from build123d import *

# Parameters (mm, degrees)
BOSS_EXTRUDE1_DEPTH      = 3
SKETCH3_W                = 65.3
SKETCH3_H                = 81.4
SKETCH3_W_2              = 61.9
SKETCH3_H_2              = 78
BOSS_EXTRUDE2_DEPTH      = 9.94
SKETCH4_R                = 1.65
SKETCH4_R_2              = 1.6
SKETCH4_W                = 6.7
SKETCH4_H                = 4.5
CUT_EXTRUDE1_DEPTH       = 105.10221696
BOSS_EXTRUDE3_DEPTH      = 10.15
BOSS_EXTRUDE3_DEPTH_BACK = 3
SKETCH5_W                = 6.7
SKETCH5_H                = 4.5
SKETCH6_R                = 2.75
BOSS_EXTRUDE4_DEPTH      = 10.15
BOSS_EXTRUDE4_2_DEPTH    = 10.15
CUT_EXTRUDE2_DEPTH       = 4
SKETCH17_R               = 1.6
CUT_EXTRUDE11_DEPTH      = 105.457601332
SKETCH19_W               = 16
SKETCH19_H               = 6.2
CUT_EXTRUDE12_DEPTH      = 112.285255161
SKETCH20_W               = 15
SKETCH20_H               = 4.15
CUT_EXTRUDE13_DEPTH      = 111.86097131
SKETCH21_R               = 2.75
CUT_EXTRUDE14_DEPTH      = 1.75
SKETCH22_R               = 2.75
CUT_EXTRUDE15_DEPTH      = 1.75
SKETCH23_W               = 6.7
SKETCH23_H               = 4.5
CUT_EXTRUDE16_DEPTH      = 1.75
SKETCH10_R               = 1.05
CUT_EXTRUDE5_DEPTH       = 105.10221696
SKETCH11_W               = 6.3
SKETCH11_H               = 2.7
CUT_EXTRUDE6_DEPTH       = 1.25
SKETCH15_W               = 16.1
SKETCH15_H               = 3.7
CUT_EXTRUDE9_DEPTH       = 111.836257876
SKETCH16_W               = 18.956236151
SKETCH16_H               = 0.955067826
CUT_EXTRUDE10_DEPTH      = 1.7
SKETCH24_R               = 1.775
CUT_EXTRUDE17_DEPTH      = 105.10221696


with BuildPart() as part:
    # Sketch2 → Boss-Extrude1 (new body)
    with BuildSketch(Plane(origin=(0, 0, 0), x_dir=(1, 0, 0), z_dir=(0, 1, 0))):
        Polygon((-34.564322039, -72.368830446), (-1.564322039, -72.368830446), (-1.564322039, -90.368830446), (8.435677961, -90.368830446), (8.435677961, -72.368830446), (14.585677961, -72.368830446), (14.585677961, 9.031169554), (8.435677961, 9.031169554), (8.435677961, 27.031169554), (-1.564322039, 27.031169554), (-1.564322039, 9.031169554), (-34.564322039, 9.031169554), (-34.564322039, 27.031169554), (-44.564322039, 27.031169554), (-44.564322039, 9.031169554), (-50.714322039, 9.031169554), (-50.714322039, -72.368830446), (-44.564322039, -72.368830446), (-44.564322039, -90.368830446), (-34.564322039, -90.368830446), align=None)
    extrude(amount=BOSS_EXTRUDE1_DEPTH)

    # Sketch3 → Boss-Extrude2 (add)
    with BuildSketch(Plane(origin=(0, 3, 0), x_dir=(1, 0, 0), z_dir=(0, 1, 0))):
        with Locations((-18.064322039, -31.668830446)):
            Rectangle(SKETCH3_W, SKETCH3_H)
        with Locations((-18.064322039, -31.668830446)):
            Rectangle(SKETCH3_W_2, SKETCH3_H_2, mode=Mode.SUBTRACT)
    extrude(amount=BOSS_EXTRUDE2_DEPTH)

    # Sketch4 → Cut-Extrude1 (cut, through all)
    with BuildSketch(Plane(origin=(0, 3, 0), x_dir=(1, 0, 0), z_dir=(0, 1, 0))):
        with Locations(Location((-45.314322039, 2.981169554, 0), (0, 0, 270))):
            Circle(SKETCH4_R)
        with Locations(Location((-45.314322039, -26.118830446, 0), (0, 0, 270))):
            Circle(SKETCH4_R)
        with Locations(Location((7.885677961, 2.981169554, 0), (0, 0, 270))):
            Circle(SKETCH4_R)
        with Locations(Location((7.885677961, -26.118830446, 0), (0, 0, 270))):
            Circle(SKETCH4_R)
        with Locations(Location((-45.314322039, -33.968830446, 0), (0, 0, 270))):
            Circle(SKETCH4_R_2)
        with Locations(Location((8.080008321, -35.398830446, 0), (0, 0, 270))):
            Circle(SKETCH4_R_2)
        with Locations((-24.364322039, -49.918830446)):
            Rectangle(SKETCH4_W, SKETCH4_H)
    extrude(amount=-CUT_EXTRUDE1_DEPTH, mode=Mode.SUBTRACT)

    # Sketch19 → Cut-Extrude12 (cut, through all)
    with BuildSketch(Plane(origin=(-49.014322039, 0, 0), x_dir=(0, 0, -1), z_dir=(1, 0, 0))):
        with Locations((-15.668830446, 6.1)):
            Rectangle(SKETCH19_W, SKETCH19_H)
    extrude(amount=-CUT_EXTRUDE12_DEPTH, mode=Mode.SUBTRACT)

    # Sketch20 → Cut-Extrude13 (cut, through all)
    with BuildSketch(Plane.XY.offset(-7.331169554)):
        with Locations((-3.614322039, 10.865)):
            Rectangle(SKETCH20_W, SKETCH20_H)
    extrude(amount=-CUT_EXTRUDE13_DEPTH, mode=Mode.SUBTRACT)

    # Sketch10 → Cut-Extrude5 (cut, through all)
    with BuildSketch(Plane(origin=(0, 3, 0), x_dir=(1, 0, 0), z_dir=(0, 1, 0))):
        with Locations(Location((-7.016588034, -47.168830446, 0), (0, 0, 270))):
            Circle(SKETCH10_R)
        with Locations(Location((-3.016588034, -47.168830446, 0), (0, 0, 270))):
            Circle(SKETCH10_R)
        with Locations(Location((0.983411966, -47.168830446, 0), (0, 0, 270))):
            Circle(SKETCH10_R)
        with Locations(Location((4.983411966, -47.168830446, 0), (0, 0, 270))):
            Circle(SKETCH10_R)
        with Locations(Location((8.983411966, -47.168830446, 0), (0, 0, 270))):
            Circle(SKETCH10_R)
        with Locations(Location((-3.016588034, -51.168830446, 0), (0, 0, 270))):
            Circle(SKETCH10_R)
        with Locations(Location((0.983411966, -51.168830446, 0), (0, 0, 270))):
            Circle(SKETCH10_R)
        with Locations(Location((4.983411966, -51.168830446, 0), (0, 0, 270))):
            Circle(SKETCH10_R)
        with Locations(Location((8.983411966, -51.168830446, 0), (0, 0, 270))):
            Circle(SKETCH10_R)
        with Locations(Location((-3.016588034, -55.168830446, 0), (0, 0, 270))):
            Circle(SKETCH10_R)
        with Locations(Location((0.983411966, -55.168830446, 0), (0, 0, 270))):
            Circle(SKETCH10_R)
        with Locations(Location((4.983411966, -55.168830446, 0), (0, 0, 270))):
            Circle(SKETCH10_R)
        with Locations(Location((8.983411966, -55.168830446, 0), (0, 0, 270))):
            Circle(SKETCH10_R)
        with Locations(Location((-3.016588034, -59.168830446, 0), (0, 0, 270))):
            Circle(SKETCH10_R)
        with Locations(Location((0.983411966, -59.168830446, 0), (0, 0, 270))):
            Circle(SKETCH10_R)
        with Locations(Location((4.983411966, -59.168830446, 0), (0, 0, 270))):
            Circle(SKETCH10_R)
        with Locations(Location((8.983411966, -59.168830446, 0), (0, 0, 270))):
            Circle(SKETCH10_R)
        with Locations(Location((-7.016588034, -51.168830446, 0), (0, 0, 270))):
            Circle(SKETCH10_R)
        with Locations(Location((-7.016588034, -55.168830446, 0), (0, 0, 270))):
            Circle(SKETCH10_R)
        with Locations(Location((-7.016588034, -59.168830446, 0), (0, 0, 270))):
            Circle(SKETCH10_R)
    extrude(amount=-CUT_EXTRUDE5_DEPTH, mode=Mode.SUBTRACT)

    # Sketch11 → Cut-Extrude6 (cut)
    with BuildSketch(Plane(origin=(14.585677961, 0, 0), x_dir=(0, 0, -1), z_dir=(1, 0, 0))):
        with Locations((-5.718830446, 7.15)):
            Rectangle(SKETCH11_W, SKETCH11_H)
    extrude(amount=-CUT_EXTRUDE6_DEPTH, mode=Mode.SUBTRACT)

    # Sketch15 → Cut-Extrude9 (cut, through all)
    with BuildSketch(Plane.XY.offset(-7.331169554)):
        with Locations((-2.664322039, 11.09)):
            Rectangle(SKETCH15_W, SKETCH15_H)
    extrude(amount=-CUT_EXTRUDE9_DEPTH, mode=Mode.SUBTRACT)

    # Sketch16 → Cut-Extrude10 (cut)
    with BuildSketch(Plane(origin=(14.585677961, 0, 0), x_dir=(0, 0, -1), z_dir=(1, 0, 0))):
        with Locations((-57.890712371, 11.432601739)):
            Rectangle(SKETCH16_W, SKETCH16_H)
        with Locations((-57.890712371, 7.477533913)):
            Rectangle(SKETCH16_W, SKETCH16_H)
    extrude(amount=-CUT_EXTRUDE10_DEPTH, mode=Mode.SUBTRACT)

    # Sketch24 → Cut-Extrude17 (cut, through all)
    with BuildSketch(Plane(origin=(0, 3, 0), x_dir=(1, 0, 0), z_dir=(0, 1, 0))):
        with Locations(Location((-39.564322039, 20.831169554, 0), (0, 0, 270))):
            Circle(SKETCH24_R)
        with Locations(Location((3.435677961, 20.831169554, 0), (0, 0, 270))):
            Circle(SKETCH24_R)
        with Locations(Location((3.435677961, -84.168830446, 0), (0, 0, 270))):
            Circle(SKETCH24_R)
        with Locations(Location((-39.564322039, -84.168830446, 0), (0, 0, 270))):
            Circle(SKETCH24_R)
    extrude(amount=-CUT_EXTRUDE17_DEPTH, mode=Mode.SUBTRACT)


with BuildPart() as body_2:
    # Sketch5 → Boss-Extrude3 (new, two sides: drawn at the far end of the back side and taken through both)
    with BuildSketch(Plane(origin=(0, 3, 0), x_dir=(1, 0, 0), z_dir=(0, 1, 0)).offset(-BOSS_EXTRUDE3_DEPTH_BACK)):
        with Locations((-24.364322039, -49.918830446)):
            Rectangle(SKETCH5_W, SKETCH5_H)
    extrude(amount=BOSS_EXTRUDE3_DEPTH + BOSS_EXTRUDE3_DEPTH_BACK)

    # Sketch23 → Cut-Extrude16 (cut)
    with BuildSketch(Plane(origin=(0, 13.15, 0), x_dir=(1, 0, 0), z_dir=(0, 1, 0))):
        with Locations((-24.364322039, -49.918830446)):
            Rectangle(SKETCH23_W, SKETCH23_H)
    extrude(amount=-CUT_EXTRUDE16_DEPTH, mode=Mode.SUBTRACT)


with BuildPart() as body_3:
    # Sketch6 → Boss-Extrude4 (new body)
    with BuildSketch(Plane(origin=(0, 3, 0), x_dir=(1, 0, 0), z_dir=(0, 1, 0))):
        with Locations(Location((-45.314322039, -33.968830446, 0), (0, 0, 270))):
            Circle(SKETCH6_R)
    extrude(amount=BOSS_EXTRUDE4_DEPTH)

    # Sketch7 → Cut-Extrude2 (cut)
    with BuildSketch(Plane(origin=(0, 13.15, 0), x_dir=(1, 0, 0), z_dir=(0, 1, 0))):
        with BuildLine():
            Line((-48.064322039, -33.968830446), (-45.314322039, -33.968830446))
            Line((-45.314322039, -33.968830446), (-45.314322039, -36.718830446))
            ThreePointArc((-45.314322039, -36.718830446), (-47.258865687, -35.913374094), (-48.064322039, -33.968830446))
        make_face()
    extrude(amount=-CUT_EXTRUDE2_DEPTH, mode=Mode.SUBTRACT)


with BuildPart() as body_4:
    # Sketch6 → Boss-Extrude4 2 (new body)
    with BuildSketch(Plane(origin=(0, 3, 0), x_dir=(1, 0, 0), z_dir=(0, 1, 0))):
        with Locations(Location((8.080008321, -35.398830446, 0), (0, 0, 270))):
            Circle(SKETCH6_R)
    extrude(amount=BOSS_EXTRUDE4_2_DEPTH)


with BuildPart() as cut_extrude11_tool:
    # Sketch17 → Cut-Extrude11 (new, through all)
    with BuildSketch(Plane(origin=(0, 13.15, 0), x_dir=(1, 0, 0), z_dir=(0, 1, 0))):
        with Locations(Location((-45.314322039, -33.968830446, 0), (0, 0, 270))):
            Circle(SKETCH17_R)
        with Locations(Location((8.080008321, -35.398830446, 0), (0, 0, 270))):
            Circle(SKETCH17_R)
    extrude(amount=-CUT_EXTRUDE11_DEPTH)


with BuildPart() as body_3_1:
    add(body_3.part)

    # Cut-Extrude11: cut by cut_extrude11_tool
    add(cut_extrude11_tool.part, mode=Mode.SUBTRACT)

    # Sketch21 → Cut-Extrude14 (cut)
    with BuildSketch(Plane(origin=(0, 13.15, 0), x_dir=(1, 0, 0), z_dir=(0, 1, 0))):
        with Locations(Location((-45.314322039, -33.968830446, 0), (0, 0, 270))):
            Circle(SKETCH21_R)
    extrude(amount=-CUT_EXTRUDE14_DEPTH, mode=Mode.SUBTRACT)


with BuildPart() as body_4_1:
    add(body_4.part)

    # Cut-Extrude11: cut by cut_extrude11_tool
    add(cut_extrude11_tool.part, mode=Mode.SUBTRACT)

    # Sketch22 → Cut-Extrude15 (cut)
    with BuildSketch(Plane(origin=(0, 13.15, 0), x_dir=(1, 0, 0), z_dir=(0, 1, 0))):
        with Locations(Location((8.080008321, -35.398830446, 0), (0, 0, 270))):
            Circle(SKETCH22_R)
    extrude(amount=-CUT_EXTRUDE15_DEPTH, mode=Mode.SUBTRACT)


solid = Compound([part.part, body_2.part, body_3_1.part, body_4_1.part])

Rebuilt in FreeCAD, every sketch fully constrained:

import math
import FreeCAD as App
import Part
import Sketcher
Q = App.Units.Quantity

doc = App.newDocument("Part")
body = doc.addObject("PartDesign::Body", "Body")

sketch1 = doc.addObject("Sketcher::SketchObject", "Sketch")
body.addObject(sketch1)
sketch1.AttachmentSupport = (doc.XZ_Plane, [""])
sketch1.MapMode = "FlatFace"
sketch1.addGeometry([
    Part.LineSegment(App.Vector(-34.564322, 72.36883, 0), App.Vector(-1.564322, 72.36883, 0)),
    Part.LineSegment(App.Vector(-1.564322, 72.36883, 0), App.Vector(-1.564322, 90.36883, 0)),
    Part.LineSegment(App.Vector(-1.564322, 90.36883, 0), App.Vector(8.435678, 90.36883, 0)),
    Part.LineSegment(App.Vector(8.435678, 90.36883, 0), App.Vector(8.435678, 72.36883, 0)),
    Part.LineSegment(App.Vector(8.435678, 72.36883, 0), App.Vector(14.585678, 72.36883, 0)),
    Part.LineSegment(App.Vector(14.585678, 72.36883, 0), App.Vector(14.585678, -9.03117, 0)),
    Part.LineSegment(App.Vector(14.585678, -9.03117, 0), App.Vector(8.435678, -9.03117, 0)),
    Part.LineSegment(App.Vector(8.435678, -9.03117, 0), App.Vector(8.435678, -27.03117, 0)),
    Part.LineSegment(App.Vector(8.435678, -27.03117, 0), App.Vector(-1.564322, -27.03117, 0)),
    Part.LineSegment(App.Vector(-1.564322, -27.03117, 0), App.Vector(-1.564322, -9.03117, 0)),
    Part.LineSegment(App.Vector(-1.564322, -9.03117, 0), App.Vector(-34.564322, -9.03117, 0)),
    Part.LineSegment(App.Vector(-34.564322, -9.03117, 0), App.Vector(-34.564322, -27.03117, 0)),
    Part.LineSegment(App.Vector(-34.564322, -27.03117, 0), App.Vector(-44.564322, -27.03117, 0)),
    Part.LineSegment(App.Vector(-44.564322, -27.03117, 0), App.Vector(-44.564322, -9.03117, 0)),
    Part.LineSegment(App.Vector(-44.564322, -9.03117, 0), App.Vector(-50.714322, -9.03117, 0)),
    Part.LineSegment(App.Vector(-50.714322, -9.03117, 0), App.Vector(-50.714322, 72.36883, 0)),
    Part.LineSegment(App.Vector(-50.714322, 72.36883, 0), App.Vector(-44.564322, 72.36883, 0)),
    Part.LineSegment(App.Vector(-44.564322, 72.36883, 0), App.Vector(-44.564322, 90.36883, 0)),
    Part.LineSegment(App.Vector(-44.564322, 90.36883, 0), App.Vector(-34.564322, 90.36883, 0)),
    Part.LineSegment(App.Vector(-34.564322, 90.36883, 0), App.Vector(-34.564322, 72.36883, 0)),
], False)
sketch1.addConstraint([
    Sketcher.Constraint("Coincident", 0, 2, 1, 1),
    Sketcher.Constraint("Coincident", 1, 2, 2, 1),
    Sketcher.Constraint("Coincident", 2, 2, 3, 1),
    Sketcher.Constraint("Coincident", 3, 2, 4, 1),
    Sketcher.Constraint("Coincident", 4, 2, 5, 1),
    Sketcher.Constraint("Coincident", 5, 2, 6, 1),
    Sketcher.Constraint("Coincident", 6, 2, 7, 1),
    Sketcher.Constraint("Coincident", 7, 2, 8, 1),
    Sketcher.Constraint("Coincident", 8, 2, 9, 1),
    Sketcher.Constraint("Coincident", 9, 2, 10, 1),
    Sketcher.Constraint("Coincident", 10, 2, 11, 1),
    Sketcher.Constraint("Coincident", 11, 2, 12, 1),
    Sketcher.Constraint("Coincident", 12, 2, 13, 1),
    Sketcher.Constraint("Coincident", 13, 2, 14, 1),
    Sketcher.Constraint("Coincident", 14, 2, 15, 1),
    Sketcher.Constraint("Coincident", 15, 2, 16, 1),
    Sketcher.Constraint("Coincident", 16, 2, 17, 1),
    Sketcher.Constraint("Coincident", 17, 2, 18, 1),
    Sketcher.Constraint("Coincident", 18, 2, 19, 1),
    Sketcher.Constraint("Coincident", 19, 2, 0, 1),
    Sketcher.Constraint("Horizontal", 0),
    Sketcher.Constraint("Vertical", 1),
    Sketcher.Constraint("Horizontal", 2),
    Sketcher.Constraint("Vertical", 3),
    Sketcher.Constraint("Horizontal", 4),
    Sketcher.Constraint("Vertical", 5),
    Sketcher.Constraint("Horizontal", 6),
    Sketcher.Constraint("Vertical", 7),
    Sketcher.Constraint("Horizontal", 8),
    Sketcher.Constraint("Vertical", 9),
    Sketcher.Constraint("Horizontal", 10),
    Sketcher.Constraint("Vertical", 11),
    Sketcher.Constraint("Horizontal", 12),
    Sketcher.Constraint("Vertical", 13),
    Sketcher.Constraint("Horizontal", 14),
    Sketcher.Constraint("Vertical", 15),
    Sketcher.Constraint("Horizontal", 16),
    Sketcher.Constraint("Vertical", 17),
    Sketcher.Constraint("Horizontal", 18),
    Sketcher.Constraint("Vertical", 19),
    Sketcher.Constraint("Horizontal", 0, 2, 3, 2),
    Sketcher.Constraint("Horizontal", 6, 2, 9, 2),
    Sketcher.Constraint("Horizontal", 8, 2, 11, 2),
    Sketcher.Constraint("Horizontal", 10, 2, 13, 2),
    Sketcher.Constraint("Horizontal", 4, 2, 15, 2),
    Sketcher.Constraint("Horizontal", 2, 2, 17, 2),
    Sketcher.Constraint("Vertical", 3, 2, 6, 2),
    Sketcher.Constraint("Vertical", 1, 2, 8, 2),
    Sketcher.Constraint("Vertical", 13, 2, 16, 2),
    Sketcher.Constraint("Vertical", 11, 2, 18, 2),
    Sketcher.Constraint("Equal", 8, 12),
    Sketcher.Constraint("Equal", 6, 14),
    Sketcher.Constraint("Equal", 3, 7),
    Sketcher.Constraint("DistanceX", 0, 1, 0, 2, Q("33 mm")),
    Sketcher.Constraint("DistanceX", 2, 1, 2, 2, Q("10 mm")),
    Sketcher.Constraint("DistanceY", 1, 1, 1, 2, Q("18 mm")),
    Sketcher.Constraint("DistanceY", 5, 2, 5, 1, Q("81.4 mm")),
    Sketcher.Constraint("DistanceX", 4, 1, 4, 2, Q("6.15 mm")),
    Sketcher.Constraint("DistanceY", -1, 1, 0, 2, Q("72.36883 mm")),
    Sketcher.Constraint("DistanceX", 0, 2, -1, 1, Q("1.564322 mm")),
])
pad1 = doc.addObject("PartDesign::Pad", "Pad")
body.addObject(pad1)
pad1.Profile = sketch1
pad1.Length = 3
pad1.Reversed = True

sketch2 = doc.addObject("Sketcher::SketchObject", "Sketch001")
body.addObject(sketch2)
sketch2.AttachmentSupport = (doc.XZ_Plane, [""])
sketch2.MapMode = "FlatFace"
sketch2.AttachmentOffset = App.Placement(App.Vector(0, 0, -3), App.Rotation())
sketch2.addGeometry([
    Part.LineSegment(App.Vector(-50.714322, -9.03117, 0), App.Vector(-50.714322, 72.36883, 0)),
    Part.LineSegment(App.Vector(-50.714322, 72.36883, 0), App.Vector(14.585678, 72.36883, 0)),
    Part.LineSegment(App.Vector(14.585678, 72.36883, 0), App.Vector(14.585678, -9.03117, 0)),
    Part.LineSegment(App.Vector(14.585678, -9.03117, 0), App.Vector(-50.714322, -9.03117, 0)),
    Part.LineSegment(App.Vector(12.885678, 70.66883, 0), App.Vector(-49.014322, 70.66883, 0)),
    Part.LineSegment(App.Vector(-49.014322, 70.66883, 0), App.Vector(-49.014322, -7.33117, 0)),
    Part.LineSegment(App.Vector(-49.014322, -7.33117, 0), App.Vector(12.885678, -7.33117, 0)),
    Part.LineSegment(App.Vector(12.885678, -7.33117, 0), App.Vector(12.885678, 70.66883, 0)),
], False)
sketch2.addConstraint([
    Sketcher.Constraint("Coincident", 0, 2, 1, 1),
    Sketcher.Constraint("Coincident", 1, 2, 2, 1),
    Sketcher.Constraint("Coincident", 2, 2, 3, 1),
    Sketcher.Constraint("Coincident", 3, 2, 0, 1),
    Sketcher.Constraint("Coincident", 4, 2, 5, 1),
    Sketcher.Constraint("Coincident", 5, 2, 6, 1),
    Sketcher.Constraint("Coincident", 6, 2, 7, 1),
    Sketcher.Constraint("Coincident", 7, 2, 4, 1),
    Sketcher.Constraint("Vertical", 0),
    Sketcher.Constraint("Horizontal", 1),
    Sketcher.Constraint("Vertical", 2),
    Sketcher.Constraint("Horizontal", 3),
    Sketcher.Constraint("Horizontal", 4),
    Sketcher.Constraint("Vertical", 5),
    Sketcher.Constraint("Horizontal", 6),
    Sketcher.Constraint("Vertical", 7),
    Sketcher.Constraint("DistanceY", 5, 2, 5, 1, Q("78 mm")),
    Sketcher.Constraint("DistanceX", 1, 1, 1, 2, Q("65.3 mm")),
    Sketcher.Constraint("DistanceX", 4, 2, 4, 1, Q("61.9 mm")),
    Sketcher.Constraint("DistanceY", 0, 1, 0, 2, Q("81.4 mm")),
    Sketcher.Constraint("DistanceX", 0, 2, 4, 2, Q("1.7 mm")),
    Sketcher.Constraint("DistanceY", 4, 2, 0, 2, Q("1.7 mm")),
    Sketcher.Constraint("DistanceY", -1, 1, 0, 2, Q("72.36883 mm")),
    Sketcher.Constraint("DistanceX", 0, 2, -1, 1, Q("50.714322 mm")),
])
pad2 = doc.addObject("PartDesign::Pad", "Pad001")
body.addObject(pad2)
pad2.Profile = sketch2
pad2.Length = 9.94
pad2.Reversed = True

sketch3 = doc.addObject("Sketcher::SketchObject", "Sketch002")
body.addObject(sketch3)
sketch3.AttachmentSupport = (doc.XZ_Plane, [""])
sketch3.MapMode = "FlatFace"
sketch3.AttachmentOffset = App.Placement(App.Vector(0, 0, -3), App.Rotation())
sketch3.addGeometry([
    Part.Circle(App.Vector(-45.314322, -2.98117, 0), App.Vector(0, 0, 1), 1.65),
    Part.Circle(App.Vector(-45.314322, 26.11883, 0), App.Vector(0, 0, 1), 1.65),
    Part.Circle(App.Vector(7.885678, -2.98117, 0), App.Vector(0, 0, 1), 1.65),
    Part.Circle(App.Vector(7.885678, 26.11883, 0), App.Vector(0, 0, 1), 1.65),
    Part.Circle(App.Vector(-45.314322, 33.96883, 0), App.Vector(0, 0, 1), 1.6),
    Part.Circle(App.Vector(8.080008, 35.39883, 0), App.Vector(0, 0, 1), 1.6),
    Part.LineSegment(App.Vector(-27.714322, 47.66883, 0), App.Vector(-27.714322, 52.16883, 0)),
    Part.LineSegment(App.Vector(-27.714322, 52.16883, 0), App.Vector(-21.014322, 52.16883, 0)),
    Part.LineSegment(App.Vector(-21.014322, 52.16883, 0), App.Vector(-21.014322, 47.66883, 0)),
    Part.LineSegment(App.Vector(-21.014322, 47.66883, 0), App.Vector(-27.714322, 47.66883, 0)),
], False)
sketch3.addConstraint([
    Sketcher.Constraint("Coincident", 6, 2, 7, 1),
    Sketcher.Constraint("Coincident", 7, 2, 8, 1),
    Sketcher.Constraint("Coincident", 8, 2, 9, 1),
    Sketcher.Constraint("Coincident", 9, 2, 6, 1),
    Sketcher.Constraint("Vertical", 6),
    Sketcher.Constraint("Horizontal", 7),
    Sketcher.Constraint("Vertical", 8),
    Sketcher.Constraint("Horizontal", 9),
    Sketcher.Constraint("Equal", 0, 1),
    Sketcher.Constraint("Equal", 1, 2),
    Sketcher.Constraint("Equal", 2, 3),
    Sketcher.Constraint("Equal", 4, 5),
    Sketcher.Constraint("Horizontal", 0, 3, 2, 3),
    Sketcher.Constraint("Horizontal", 1, 3, 3, 3),
    Sketcher.Constraint("Vertical", 0, 3, 1, 3),
    Sketcher.Constraint("Vertical", 2, 3, 3, 3),
    Sketcher.Constraint("Vertical", 1, 3, 4, 3),
    Sketcher.Constraint("Diameter", 0, Q("3.3 mm")),
    Sketcher.Constraint("Diameter", 4, Q("3.2 mm")),
    Sketcher.Constraint("DistanceX", 7, 1, 7, 2, Q("6.7 mm")),
    Sketcher.Constraint("DistanceY", 6, 1, 6, 2, Q("4.5 mm")),
    Sketcher.Constraint("DistanceY", 0, 3, 1, 3, Q("29.1 mm")),
    Sketcher.Constraint("DistanceX", 0, 3, 2, 3, Q("53.2 mm")),
    Sketcher.Constraint("DistanceX", 4, 3, 6, 2, Q("17.6 mm")),
    Sketcher.Constraint("DistanceY", 4, 3, 6, 2, Q("18.2 mm")),
    Sketcher.Constraint("DistanceY", 1, 3, 4, 3, Q("7.85 mm")),
    Sketcher.Constraint("DistanceY", 3, 3, 5, 3, Q("9.28 mm")),
    Sketcher.Constraint("DistanceY", 0, 3, -1, 1, Q("2.98117 mm")),
    Sketcher.Constraint("DistanceX", -1, 1, 5, 3, Q("8.080008 mm")),
    Sketcher.Constraint("DistanceX", 3, 3, 5, 3, Q("0.19433 mm")),
])
pocket1 = doc.addObject("PartDesign::Pocket", "Pocket")
body.addObject(pocket1)
pocket1.Profile = sketch3
pocket1.Type = "ThroughAll"
pocket1.Reversed = True

sketch4 = doc.addObject("Sketcher::SketchObject", "Sketch003")
body.addObject(sketch4)
sketch4.AttachmentSupport = (doc.YZ_Plane, [""])
sketch4.MapMode = "FlatFace"
sketch4.AttachmentOffset = App.Placement(App.Vector(0, 0, -49.014322), App.Rotation())
sketch4.addGeometry([
    Part.LineSegment(App.Vector(9.2, 23.66883, 0), App.Vector(3, 23.66883, 0)),
    Part.LineSegment(App.Vector(3, 23.66883, 0), App.Vector(3, 7.66883, 0)),
    Part.LineSegment(App.Vector(3, 7.66883, 0), App.Vector(9.2, 7.66883, 0)),
    Part.LineSegment(App.Vector(9.2, 7.66883, 0), App.Vector(9.2, 23.66883, 0)),
], False)
sketch4.addConstraint([
    Sketcher.Constraint("Coincident", 0, 2, 1, 1),
    Sketcher.Constraint("Coincident", 1, 2, 2, 1),
    Sketcher.Constraint("Coincident", 2, 2, 3, 1),
    Sketcher.Constraint("Coincident", 3, 2, 0, 1),
    Sketcher.Constraint("Horizontal", 0),
    Sketcher.Constraint("Vertical", 1),
    Sketcher.Constraint("Horizontal", 2),
    Sketcher.Constraint("Vertical", 3),
    Sketcher.Constraint("DistanceY", 1, 2, 1, 1, Q("16 mm")),
    Sketcher.Constraint("DistanceX", 0, 2, 0, 1, Q("6.2 mm")),
    Sketcher.Constraint("DistanceX", -1, 1, 0, 2, Q("3 mm")),
    Sketcher.Constraint("DistanceY", -1, 1, 0, 2, Q("23.66883 mm")),
])
pocket2 = doc.addObject("PartDesign::Pocket", "Pocket001")
body.addObject(pocket2)
pocket2.Profile = sketch4
pocket2.Type = "ThroughAll"

sketch5 = doc.addObject("Sketcher::SketchObject", "Sketch004")
body.addObject(sketch5)
sketch5.AttachmentSupport = (doc.XY_Plane, [""])
sketch5.MapMode = "FlatFace"
sketch5.AttachmentOffset = App.Placement(App.Vector(0, 0, -7.33117), App.Rotation())
sketch5.addGeometry([
    Part.LineSegment(App.Vector(-11.114322, 12.94, 0), App.Vector(-11.114322, 8.79, 0)),
    Part.LineSegment(App.Vector(-11.114322, 8.79, 0), App.Vector(3.885678, 8.79, 0)),
    Part.LineSegment(App.Vector(3.885678, 8.79, 0), App.Vector(3.885678, 12.94, 0)),
    Part.LineSegment(App.Vector(3.885678, 12.94, 0), App.Vector(-11.114322, 12.94, 0)),
], False)
sketch5.addConstraint([
    Sketcher.Constraint("Coincident", 0, 2, 1, 1),
    Sketcher.Constraint("Coincident", 1, 2, 2, 1),
    Sketcher.Constraint("Coincident", 2, 2, 3, 1),
    Sketcher.Constraint("Coincident", 3, 2, 0, 1),
    Sketcher.Constraint("Vertical", 0),
    Sketcher.Constraint("Horizontal", 1),
    Sketcher.Constraint("Vertical", 2),
    Sketcher.Constraint("Horizontal", 3),
    Sketcher.Constraint("DistanceX", 1, 1, 1, 2, Q("15 mm")),
    Sketcher.Constraint("DistanceY", 0, 2, 0, 1, Q("4.15 mm")),
    Sketcher.Constraint("DistanceY", -1, 1, 0, 2, Q("8.79 mm")),
    Sketcher.Constraint("DistanceX", 0, 2, -1, 1, Q("11.114322 mm")),
])
pocket3 = doc.addObject("PartDesign::Pocket", "Pocket002")
body.addObject(pocket3)
pocket3.Profile = sketch5
pocket3.Type = "ThroughAll"

sketch6 = doc.addObject("Sketcher::SketchObject", "Sketch005")
body.addObject(sketch6)
sketch6.AttachmentSupport = (doc.XZ_Plane, [""])
sketch6.MapMode = "FlatFace"
sketch6.AttachmentOffset = App.Placement(App.Vector(0, 0, -3), App.Rotation())
sketch6.addGeometry([
    Part.Circle(App.Vector(-7.016588, 47.16883, 0), App.Vector(0, 0, 1), 1.05),
    Part.Circle(App.Vector(-3.016588, 47.16883, 0), App.Vector(0, 0, 1), 1.05),
    Part.Circle(App.Vector(0.983412, 47.16883, 0), App.Vector(0, 0, 1), 1.05),
    Part.Circle(App.Vector(4.983412, 47.16883, 0), App.Vector(0, 0, 1), 1.05),
    Part.Circle(App.Vector(8.983412, 47.16883, 0), App.Vector(0, 0, 1), 1.05),
    Part.Circle(App.Vector(-3.016588, 51.16883, 0), App.Vector(0, 0, 1), 1.05),
    Part.Circle(App.Vector(0.983412, 51.16883, 0), App.Vector(0, 0, 1), 1.05),
    Part.Circle(App.Vector(4.983412, 51.16883, 0), App.Vector(0, 0, 1), 1.05),
    Part.Circle(App.Vector(8.983412, 51.16883, 0), App.Vector(0, 0, 1), 1.05),
    Part.Circle(App.Vector(-3.016588, 55.16883, 0), App.Vector(0, 0, 1), 1.05),
    Part.Circle(App.Vector(0.983412, 55.16883, 0), App.Vector(0, 0, 1), 1.05),
    Part.Circle(App.Vector(4.983412, 55.16883, 0), App.Vector(0, 0, 1), 1.05),
    Part.Circle(App.Vector(8.983412, 55.16883, 0), App.Vector(0, 0, 1), 1.05),
    Part.Circle(App.Vector(-3.016588, 59.16883, 0), App.Vector(0, 0, 1), 1.05),
    Part.Circle(App.Vector(0.983412, 59.16883, 0), App.Vector(0, 0, 1), 1.05),
    Part.Circle(App.Vector(4.983412, 59.16883, 0), App.Vector(0, 0, 1), 1.05),
    Part.Circle(App.Vector(8.983412, 59.16883, 0), App.Vector(0, 0, 1), 1.05),
    Part.Circle(App.Vector(-7.016588, 51.16883, 0), App.Vector(0, 0, 1), 1.05),
    Part.Circle(App.Vector(-7.016588, 55.16883, 0), App.Vector(0, 0, 1), 1.05),
    Part.Circle(App.Vector(-7.016588, 59.16883, 0), App.Vector(0, 0, 1), 1.05),
], False)
sketch6.addConstraint([
    Sketcher.Constraint("Equal", 0, 1),
    Sketcher.Constraint("Equal", 1, 2),
    Sketcher.Constraint("Equal", 2, 3),
    Sketcher.Constraint("Equal", 3, 4),
    Sketcher.Constraint("Equal", 4, 5),
    Sketcher.Constraint("Equal", 5, 6),
    Sketcher.Constraint("Equal", 6, 7),
    Sketcher.Constraint("Equal", 7, 8),
    Sketcher.Constraint("Equal", 8, 9),
    Sketcher.Constraint("Equal", 9, 10),
    Sketcher.Constraint("Equal", 10, 11),
    Sketcher.Constraint("Equal", 11, 12),
    Sketcher.Constraint("Equal", 12, 13),
    Sketcher.Constraint("Equal", 13, 14),
    Sketcher.Constraint("Equal", 14, 15),
    Sketcher.Constraint("Equal", 15, 16),
    Sketcher.Constraint("Equal", 16, 17),
    Sketcher.Constraint("Equal", 17, 18),
    Sketcher.Constraint("Equal", 18, 19),
    Sketcher.Constraint("Horizontal", 0, 3, 1, 3),
    Sketcher.Constraint("Horizontal", 1, 3, 2, 3),
    Sketcher.Constraint("Horizontal", 2, 3, 3, 3),
    Sketcher.Constraint("Horizontal", 3, 3, 4, 3),
    Sketcher.Constraint("Horizontal", 5, 3, 6, 3),
    Sketcher.Constraint("Horizontal", 6, 3, 7, 3),
    Sketcher.Constraint("Horizontal", 7, 3, 8, 3),
    Sketcher.Constraint("Horizontal", 9, 3, 10, 3),
    Sketcher.Constraint("Horizontal", 10, 3, 11, 3),
    Sketcher.Constraint("Horizontal", 11, 3, 12, 3),
    Sketcher.Constraint("Horizontal", 13, 3, 14, 3),
    Sketcher.Constraint("Horizontal", 14, 3, 15, 3),
    Sketcher.Constraint("Horizontal", 15, 3, 16, 3),
    Sketcher.Constraint("Horizontal", 8, 3, 17, 3),
    Sketcher.Constraint("Horizontal", 12, 3, 18, 3),
    Sketcher.Constraint("Horizontal", 16, 3, 19, 3),
    Sketcher.Constraint("Vertical", 1, 3, 5, 3),
    Sketcher.Constraint("Vertical", 2, 3, 6, 3),
    Sketcher.Constraint("Vertical", 3, 3, 7, 3),
    Sketcher.Constraint("Vertical", 4, 3, 8, 3),
    Sketcher.Constraint("Vertical", 5, 3, 9, 3),
    Sketcher.Constraint("Vertical", 6, 3, 10, 3),
    Sketcher.Constraint("Vertical", 7, 3, 11, 3),
    Sketcher.Constraint("Vertical", 8, 3, 12, 3),
    Sketcher.Constraint("Vertical", 9, 3, 13, 3),
    Sketcher.Constraint("Vertical", 10, 3, 14, 3),
    Sketcher.Constraint("Vertical", 11, 3, 15, 3),
    Sketcher.Constraint("Vertical", 12, 3, 16, 3),
    Sketcher.Constraint("Vertical", 0, 3, 17, 3),
    Sketcher.Constraint("Vertical", 17, 3, 18, 3),
    Sketcher.Constraint("Vertical", 18, 3, 19, 3),
    Sketcher.Constraint("Diameter", 0, Q("2.1 mm")),
    Sketcher.Constraint("DistanceX", 0, 3, 1, 3, Q("4 mm")),
    Sketcher.Constraint("DistanceX", 1, 3, 2, 3, Q("4 mm")),
    Sketcher.Constraint("DistanceX", 2, 3, 3, 3, Q("4 mm")),
    Sketcher.Constraint("DistanceX", 3, 3, 4, 3, Q("4 mm")),
    Sketcher.Constraint("DistanceY", 1, 3, 5, 3, Q("4 mm")),
    Sketcher.Constraint("DistanceY", 5, 3, 9, 3, Q("4 mm")),
    Sketcher.Constraint("DistanceY", 9, 3, 13, 3, Q("4 mm")),
    Sketcher.Constraint("DistanceX", 0, 3, -1, 1, Q("7.016588 mm")),
    Sketcher.Constraint("DistanceY", -1, 1, 0, 3, Q("47.16883 mm")),
])
pocket4 = doc.addObject("PartDesign::Pocket", "Pocket003")
body.addObject(pocket4)
pocket4.Profile = sketch6
pocket4.Type = "ThroughAll"
pocket4.Reversed = True

sketch7 = doc.addObject("Sketcher::SketchObject", "Sketch006")
body.addObject(sketch7)
sketch7.AttachmentSupport = (doc.YZ_Plane, [""])
sketch7.MapMode = "FlatFace"
sketch7.AttachmentOffset = App.Placement(App.Vector(0, 0, 14.585678), App.Rotation())
sketch7.addGeometry([
    Part.LineSegment(App.Vector(8.5, 8.86883, 0), App.Vector(5.8, 8.86883, 0)),
    Part.LineSegment(App.Vector(5.8, 8.86883, 0), App.Vector(5.8, 2.56883, 0)),
    Part.LineSegment(App.Vector(5.8, 2.56883, 0), App.Vector(8.5, 2.56883, 0)),
    Part.LineSegment(App.Vector(8.5, 2.56883, 0), App.Vector(8.5, 8.86883, 0)),
], False)
sketch7.addConstraint([
    Sketcher.Constraint("Coincident", 0, 2, 1, 1),
    Sketcher.Constraint("Coincident", 1, 2, 2, 1),
    Sketcher.Constraint("Coincident", 2, 2, 3, 1),
    Sketcher.Constraint("Coincident", 3, 2, 0, 1),
    Sketcher.Constraint("Horizontal", 0),
    Sketcher.Constraint("Vertical", 1),
    Sketcher.Constraint("Horizontal", 2),
    Sketcher.Constraint("Vertical", 3),
    Sketcher.Constraint("DistanceX", 0, 2, 0, 1, Q("2.7 mm")),
    Sketcher.Constraint("DistanceY", 1, 2, 1, 1, Q("6.3 mm")),
    Sketcher.Constraint("DistanceX", -1, 1, 0, 2, Q("5.8 mm")),
    Sketcher.Constraint("DistanceY", -1, 1, 0, 2, Q("8.86883 mm")),
])
pocket5 = doc.addObject("PartDesign::Pocket", "Pocket004")
body.addObject(pocket5)
pocket5.Profile = sketch7
pocket5.Length = 1.25

sketch8 = doc.addObject("Sketcher::SketchObject", "Sketch007")
body.addObject(sketch8)
sketch8.AttachmentSupport = (doc.XY_Plane, [""])
sketch8.MapMode = "FlatFace"
sketch8.AttachmentOffset = App.Placement(App.Vector(0, 0, -7.33117), App.Rotation())
sketch8.addGeometry([
    Part.LineSegment(App.Vector(-10.714322, 12.94, 0), App.Vector(-10.714322, 9.24, 0)),
    Part.LineSegment(App.Vector(-10.714322, 9.24, 0), App.Vector(5.385678, 9.24, 0)),
    Part.LineSegment(App.Vector(5.385678, 9.24, 0), App.Vector(5.385678, 12.94, 0)),
    Part.LineSegment(App.Vector(5.385678, 12.94, 0), App.Vector(-10.714322, 12.94, 0)),
], False)
sketch8.addConstraint([
    Sketcher.Constraint("Coincident", 0, 2, 1, 1),
    Sketcher.Constraint("Coincident", 1, 2, 2, 1),
    Sketcher.Constraint("Coincident", 2, 2, 3, 1),
    Sketcher.Constraint("Coincident", 3, 2, 0, 1),
    Sketcher.Constraint("Vertical", 0),
    Sketcher.Constraint("Horizontal", 1),
    Sketcher.Constraint("Vertical", 2),
    Sketcher.Constraint("Horizontal", 3),
    Sketcher.Constraint("DistanceX", 1, 1, 1, 2, Q("16.1 mm")),
    Sketcher.Constraint("DistanceY", 0, 2, 0, 1, Q("3.7 mm")),
    Sketcher.Constraint("DistanceY", -1, 1, 0, 2, Q("9.24 mm")),
    Sketcher.Constraint("DistanceX", 0, 2, -1, 1, Q("10.714322 mm")),
])
pocket6 = doc.addObject("PartDesign::Pocket", "Pocket005")
body.addObject(pocket6)
pocket6.Profile = sketch8
pocket6.Type = "ThroughAll"

sketch9 = doc.addObject("Sketcher::SketchObject", "Sketch008")
body.addObject(sketch9)
sketch9.AttachmentSupport = (doc.YZ_Plane, [""])
sketch9.MapMode = "FlatFace"
sketch9.AttachmentOffset = App.Placement(App.Vector(0, 0, 14.585678), App.Rotation())
sketch9.addGeometry([
    Part.LineSegment(App.Vector(11.910136, 67.36883, 0), App.Vector(10.955068, 67.36883, 0)),
    Part.LineSegment(App.Vector(10.955068, 67.36883, 0), App.Vector(10.955068, 48.412594, 0)),
    Part.LineSegment(App.Vector(10.955068, 48.412594, 0), App.Vector(11.910136, 48.412594, 0)),
    Part.LineSegment(App.Vector(11.910136, 48.412594, 0), App.Vector(11.910136, 67.36883, 0)),
    Part.LineSegment(App.Vector(7.955068, 67.36883, 0), App.Vector(7, 67.36883, 0)),
    Part.LineSegment(App.Vector(7, 67.36883, 0), App.Vector(7, 48.412594, 0)),
    Part.LineSegment(App.Vector(7, 48.412594, 0), App.Vector(7.955068, 48.412594, 0)),
    Part.LineSegment(App.Vector(7.955068, 48.412594, 0), App.Vector(7.955068, 67.36883, 0)),
], False)
sketch9.addConstraint([
    Sketcher.Constraint("Coincident", 0, 2, 1, 1),
    Sketcher.Constraint("Coincident", 1, 2, 2, 1),
    Sketcher.Constraint("Coincident", 2, 2, 3, 1),
    Sketcher.Constraint("Coincident", 3, 2, 0, 1),
    Sketcher.Constraint("Coincident", 4, 2, 5, 1),
    Sketcher.Constraint("Coincident", 5, 2, 6, 1),
    Sketcher.Constraint("Coincident", 6, 2, 7, 1),
    Sketcher.Constraint("Coincident", 7, 2, 4, 1),
    Sketcher.Constraint("Horizontal", 0),
    Sketcher.Constraint("Vertical", 1),
    Sketcher.Constraint("Horizontal", 2),
    Sketcher.Constraint("Vertical", 3),
    Sketcher.Constraint("Horizontal", 4),
    Sketcher.Constraint("Vertical", 5),
    Sketcher.Constraint("Horizontal", 6),
    Sketcher.Constraint("Vertical", 7),
    Sketcher.Constraint("Horizontal", 3, 2, 4, 2),
    Sketcher.Constraint("Horizontal", 2, 2, 5, 2),
    Sketcher.Constraint("Equal", 2, 4),
    Sketcher.Constraint("DistanceX", -1, 1, 4, 2, Q("7 mm")),
    Sketcher.Constraint("DistanceX", 6, 2, 1, 2, Q("3 mm")),
    Sketcher.Constraint("DistanceX", 0, 2, 0, 1, Q("0.955068 mm")),
    Sketcher.Constraint("DistanceY", 1, 2, 1, 1, Q("18.956236 mm")),
    Sketcher.Constraint("DistanceY", -1, 1, 0, 2, Q("67.36883 mm")),
])
pocket7 = doc.addObject("PartDesign::Pocket", "Pocket006")
body.addObject(pocket7)
pocket7.Profile = sketch9
pocket7.Length = 1.7

sketch10 = doc.addObject("Sketcher::SketchObject", "Sketch009")
body.addObject(sketch10)
sketch10.AttachmentSupport = (doc.XZ_Plane, [""])
sketch10.MapMode = "FlatFace"
sketch10.AttachmentOffset = App.Placement(App.Vector(0, 0, -3), App.Rotation())
sketch10.addGeometry([
    Part.Circle(App.Vector(-39.564322, -20.83117, 0), App.Vector(0, 0, 1), 1.775),
    Part.Circle(App.Vector(3.435678, -20.83117, 0), App.Vector(0, 0, 1), 1.775),
    Part.Circle(App.Vector(3.435678, 84.16883, 0), App.Vector(0, 0, 1), 1.775),
    Part.Circle(App.Vector(-39.564322, 84.16883, 0), App.Vector(0, 0, 1), 1.775),
], False)
sketch10.addConstraint([
    Sketcher.Constraint("Equal", 0, 1),
    Sketcher.Constraint("Equal", 1, 2),
    Sketcher.Constraint("Equal", 2, 3),
    Sketcher.Constraint("Horizontal", 0, 3, 1, 3),
    Sketcher.Constraint("Horizontal", 2, 3, 3, 3),
    Sketcher.Constraint("Vertical", 1, 3, 2, 3),
    Sketcher.Constraint("Vertical", 0, 3, 3, 3),
    Sketcher.Constraint("Diameter", 0, Q("3.55 mm")),
    Sketcher.Constraint("DistanceX", 0, 3, 1, 3, Q("43 mm")),
    Sketcher.Constraint("DistanceY", 1, 3, 2, 3, Q("105 mm")),
    Sketcher.Constraint("DistanceY", 0, 3, -1, 1, Q("20.83117 mm")),
    Sketcher.Constraint("DistanceX", 0, 3, -1, 1, Q("39.564322 mm")),
])
pocket8 = doc.addObject("PartDesign::Pocket", "Pocket007")
body.addObject(pocket8)
pocket8.Profile = sketch10
pocket8.Type = "ThroughAll"
pocket8.Reversed = True
body2 = doc.addObject("PartDesign::Body", "Body001")

sketch11 = doc.addObject("Sketcher::SketchObject", "Sketch010")
body2.addObject(sketch11)
sketch11.AttachmentSupport = (doc.getObject("XZ_Plane001"), [""])
sketch11.MapMode = "FlatFace"
sketch11.AttachmentOffset = App.Placement(App.Vector(0, 0, -3), App.Rotation())
sketch11.addGeometry([
    Part.LineSegment(App.Vector(-27.714322, 47.66883, 0), App.Vector(-27.714322, 52.16883, 0)),
    Part.LineSegment(App.Vector(-27.714322, 52.16883, 0), App.Vector(-21.014322, 52.16883, 0)),
    Part.LineSegment(App.Vector(-21.014322, 52.16883, 0), App.Vector(-21.014322, 47.66883, 0)),
    Part.LineSegment(App.Vector(-21.014322, 47.66883, 0), App.Vector(-27.714322, 47.66883, 0)),
], False)
sketch11.addConstraint([
    Sketcher.Constraint("Coincident", 0, 2, 1, 1),
    Sketcher.Constraint("Coincident", 1, 2, 2, 1),
    Sketcher.Constraint("Coincident", 2, 2, 3, 1),
    Sketcher.Constraint("Coincident", 3, 2, 0, 1),
    Sketcher.Constraint("Vertical", 0),
    Sketcher.Constraint("Horizontal", 1),
    Sketcher.Constraint("Vertical", 2),
    Sketcher.Constraint("Horizontal", 3),
    Sketcher.Constraint("DistanceX", 1, 1, 1, 2, Q("6.7 mm")),
    Sketcher.Constraint("DistanceY", 0, 1, 0, 2, Q("4.5 mm")),
    Sketcher.Constraint("DistanceY", -1, 1, 0, 2, Q("52.16883 mm")),
    Sketcher.Constraint("DistanceX", 0, 2, -1, 1, Q("27.714322 mm")),
])
pad3 = doc.addObject("PartDesign::Pad", "Pad002")
body2.addObject(pad3)
pad3.Profile = sketch11
pad3.Type = "TwoLengths"
pad3.Length = 10.15
pad3.Length2 = 3
pad3.Reversed = True

sketch12 = doc.addObject("Sketcher::SketchObject", "Sketch011")
body2.addObject(sketch12)
sketch12.AttachmentSupport = (doc.getObject("XZ_Plane001"), [""])
sketch12.MapMode = "FlatFace"
sketch12.AttachmentOffset = App.Placement(App.Vector(0, 0, -13.15), App.Rotation())
sketch12.addGeometry([
    Part.LineSegment(App.Vector(-27.714322, 47.66883, 0), App.Vector(-27.714322, 52.16883, 0)),
    Part.LineSegment(App.Vector(-27.714322, 52.16883, 0), App.Vector(-21.014322, 52.16883, 0)),
    Part.LineSegment(App.Vector(-21.014322, 52.16883, 0), App.Vector(-21.014322, 47.66883, 0)),
    Part.LineSegment(App.Vector(-21.014322, 47.66883, 0), App.Vector(-27.714322, 47.66883, 0)),
], False)
sketch12.addConstraint([
    Sketcher.Constraint("Coincident", 0, 2, 1, 1),
    Sketcher.Constraint("Coincident", 1, 2, 2, 1),
    Sketcher.Constraint("Coincident", 2, 2, 3, 1),
    Sketcher.Constraint("Coincident", 3, 2, 0, 1),
    Sketcher.Constraint("Vertical", 0),
    Sketcher.Constraint("Horizontal", 1),
    Sketcher.Constraint("Vertical", 2),
    Sketcher.Constraint("Horizontal", 3),
    Sketcher.Constraint("DistanceX", 1, 1, 1, 2, Q("6.7 mm")),
    Sketcher.Constraint("DistanceY", 0, 1, 0, 2, Q("4.5 mm")),
    Sketcher.Constraint("DistanceY", -1, 1, 0, 2, Q("52.16883 mm")),
    Sketcher.Constraint("DistanceX", 0, 2, -1, 1, Q("27.714322 mm")),
])
pocket9 = doc.addObject("PartDesign::Pocket", "Pocket008")
body2.addObject(pocket9)
pocket9.Profile = sketch12
pocket9.Length = 1.75
pocket9.Reversed = True
body3 = doc.addObject("PartDesign::Body", "Body002")

sketch13 = doc.addObject("Sketcher::SketchObject", "Sketch012")
body3.addObject(sketch13)
sketch13.AttachmentSupport = (doc.getObject("XZ_Plane002"), [""])
sketch13.MapMode = "FlatFace"
sketch13.AttachmentOffset = App.Placement(App.Vector(0, 0, -3), App.Rotation())
sketch13.addGeometry(Part.Circle(App.Vector(-45.314322, 33.96883, 0), App.Vector(0, 0, 1), 2.75), False)
sketch13.addConstraint([
    Sketcher.Constraint("Diameter", 0, Q("5.5 mm")),
    Sketcher.Constraint("DistanceY", -1, 1, 0, 3, Q("33.96883 mm")),
    Sketcher.Constraint("DistanceX", 0, 3, -1, 1, Q("45.314322 mm")),
])
pad4 = doc.addObject("PartDesign::Pad", "Pad003")
body3.addObject(pad4)
pad4.Profile = sketch13
pad4.Length = 10.15
pad4.Reversed = True

sketch14 = doc.addObject("Sketcher::SketchObject", "Sketch013")
body3.addObject(sketch14)
sketch14.AttachmentSupport = (doc.getObject("XZ_Plane002"), [""])
sketch14.MapMode = "FlatFace"
sketch14.AttachmentOffset = App.Placement(App.Vector(0, 0, -13.15), App.Rotation())
sketch14.addGeometry([
    Part.LineSegment(App.Vector(-45.314322, 33.96883, 0), App.Vector(-48.064322, 33.96883, 0)),
    Part.ArcOfCircle(Part.Circle(App.Vector(-45.314322, 33.96883, 0), App.Vector(0, 0, 1), 2.75), math.radians(90), math.radians(180)),
    Part.LineSegment(App.Vector(-45.314322, 36.71883, 0), App.Vector(-45.314322, 33.96883, 0)),
], False)
sketch14.addConstraint([
    Sketcher.Constraint("Coincident", 0, 2, 1, 2),
    Sketcher.Constraint("Coincident", 1, 1, 2, 1),
    Sketcher.Constraint("Coincident", 2, 2, 0, 1),
    Sketcher.Constraint("Horizontal", 0),
    Sketcher.Constraint("Vertical", 2),
    Sketcher.Constraint("Coincident", 2, 2, 1, 3),
    Sketcher.Constraint("Radius", 1, Q("2.75 mm")),
    Sketcher.Constraint("DistanceY", -1, 1, 1, 3, Q("33.96883 mm")),
    Sketcher.Constraint("DistanceX", 1, 3, -1, 1, Q("45.314322 mm")),
])
pocket10 = doc.addObject("PartDesign::Pocket", "Pocket009")
body3.addObject(pocket10)
pocket10.Profile = sketch14
pocket10.Length = 4
pocket10.Reversed = True
body4 = doc.addObject("PartDesign::Body", "Body003")

sketch15 = doc.addObject("Sketcher::SketchObject", "Sketch014")
body4.addObject(sketch15)
sketch15.AttachmentSupport = (doc.getObject("XZ_Plane003"), [""])
sketch15.MapMode = "FlatFace"
sketch15.AttachmentOffset = App.Placement(App.Vector(0, 0, -3), App.Rotation())
sketch15.addGeometry(Part.Circle(App.Vector(8.080008, 35.39883, 0), App.Vector(0, 0, 1), 2.75), False)
sketch15.addConstraint([
    Sketcher.Constraint("Diameter", 0, Q("5.5 mm")),
    Sketcher.Constraint("DistanceX", -1, 1, 0, 3, Q("8.080008 mm")),
    Sketcher.Constraint("DistanceY", -1, 1, 0, 3, Q("35.39883 mm")),
])
pad5 = doc.addObject("PartDesign::Pad", "Pad004")
body4.addObject(pad5)
pad5.Profile = sketch15
pad5.Length = 10.15
pad5.Reversed = True
body5 = doc.addObject("PartDesign::Body", "Body004")
body5.AllowCompound = True

sketch16 = doc.addObject("Sketcher::SketchObject", "Sketch015")
body5.addObject(sketch16)
sketch16.AttachmentSupport = (doc.getObject("XZ_Plane004"), [""])
sketch16.MapMode = "FlatFace"
sketch16.AttachmentOffset = App.Placement(App.Vector(0, 0, -13.15), App.Rotation())
sketch16.addGeometry([
    Part.Circle(App.Vector(-45.314322, 33.96883, 0), App.Vector(0, 0, 1), 1.6),
    Part.Circle(App.Vector(8.080008, 35.39883, 0), App.Vector(0, 0, 1), 1.6),
], False)
sketch16.addConstraint([
    Sketcher.Constraint("Equal", 0, 1),
    Sketcher.Constraint("Diameter", 0, Q("3.2 mm")),
    Sketcher.Constraint("DistanceY", 0, 3, 1, 3, Q("1.43 mm")),
    Sketcher.Constraint("DistanceY", -1, 1, 0, 3, Q("33.96883 mm")),
    Sketcher.Constraint("DistanceX", -1, 1, 1, 3, Q("8.080008 mm")),
    Sketcher.Constraint("DistanceX", 0, 3, 1, 3, Q("53.39433 mm")),
])
pad6 = doc.addObject("PartDesign::Pad", "Pad005")
body5.addObject(pad6)
pad6.Profile = sketch16
pad6.Length = 105.457601
doc.recompute()

body6 = doc.addObject("PartDesign::Body", "Body005")
body6.BaseFeature = body5
boolean = doc.addObject("PartDesign::Boolean", "Boolean")
body3.addObject(boolean)
boolean.Type = "Cut"
boolean.addObjects([body6])
doc.recompute()

sketch17 = doc.addObject("Sketcher::SketchObject", "Sketch016")
body3.addObject(sketch17)
sketch17.AttachmentSupport = (doc.getObject("XZ_Plane002"), [""])
sketch17.MapMode = "FlatFace"
sketch17.AttachmentOffset = App.Placement(App.Vector(0, 0, -13.15), App.Rotation())
sketch17.addGeometry(Part.Circle(App.Vector(-45.314322, 33.96883, 0), App.Vector(0, 0, 1), 2.75), False)
sketch17.addConstraint([
    Sketcher.Constraint("Diameter", 0, Q("5.5 mm")),
    Sketcher.Constraint("DistanceY", -1, 1, 0, 3, Q("33.96883 mm")),
    Sketcher.Constraint("DistanceX", 0, 3, -1, 1, Q("45.314322 mm")),
])
pocket11 = doc.addObject("PartDesign::Pocket", "Pocket010")
body3.addObject(pocket11)
pocket11.Profile = sketch17
pocket11.Length = 1.75
pocket11.Reversed = True
doc.recompute()

boolean2 = doc.addObject("PartDesign::Boolean", "Boolean001")
body4.addObject(boolean2)
boolean2.Type = "Cut"
boolean2.addObjects([body5])

sketch18 = doc.addObject("Sketcher::SketchObject", "Sketch017")
body4.addObject(sketch18)
sketch18.AttachmentSupport = (doc.getObject("XZ_Plane003"), [""])
sketch18.MapMode = "FlatFace"
sketch18.AttachmentOffset = App.Placement(App.Vector(0, 0, -13.15), App.Rotation())
sketch18.addGeometry(Part.Circle(App.Vector(8.080008, 35.39883, 0), App.Vector(0, 0, 1), 2.75), False)
sketch18.addConstraint([
    Sketcher.Constraint("Diameter", 0, Q("5.5 mm")),
    Sketcher.Constraint("DistanceX", -1, 1, 0, 3, Q("8.080008 mm")),
    Sketcher.Constraint("DistanceY", -1, 1, 0, 3, Q("35.39883 mm")),
])
pocket12 = doc.addObject("PartDesign::Pocket", "Pocket011")
body4.addObject(pocket12)
pocket12.Profile = sketch18
pocket12.Length = 1.75
pocket12.Reversed = True

doc.recompute()
